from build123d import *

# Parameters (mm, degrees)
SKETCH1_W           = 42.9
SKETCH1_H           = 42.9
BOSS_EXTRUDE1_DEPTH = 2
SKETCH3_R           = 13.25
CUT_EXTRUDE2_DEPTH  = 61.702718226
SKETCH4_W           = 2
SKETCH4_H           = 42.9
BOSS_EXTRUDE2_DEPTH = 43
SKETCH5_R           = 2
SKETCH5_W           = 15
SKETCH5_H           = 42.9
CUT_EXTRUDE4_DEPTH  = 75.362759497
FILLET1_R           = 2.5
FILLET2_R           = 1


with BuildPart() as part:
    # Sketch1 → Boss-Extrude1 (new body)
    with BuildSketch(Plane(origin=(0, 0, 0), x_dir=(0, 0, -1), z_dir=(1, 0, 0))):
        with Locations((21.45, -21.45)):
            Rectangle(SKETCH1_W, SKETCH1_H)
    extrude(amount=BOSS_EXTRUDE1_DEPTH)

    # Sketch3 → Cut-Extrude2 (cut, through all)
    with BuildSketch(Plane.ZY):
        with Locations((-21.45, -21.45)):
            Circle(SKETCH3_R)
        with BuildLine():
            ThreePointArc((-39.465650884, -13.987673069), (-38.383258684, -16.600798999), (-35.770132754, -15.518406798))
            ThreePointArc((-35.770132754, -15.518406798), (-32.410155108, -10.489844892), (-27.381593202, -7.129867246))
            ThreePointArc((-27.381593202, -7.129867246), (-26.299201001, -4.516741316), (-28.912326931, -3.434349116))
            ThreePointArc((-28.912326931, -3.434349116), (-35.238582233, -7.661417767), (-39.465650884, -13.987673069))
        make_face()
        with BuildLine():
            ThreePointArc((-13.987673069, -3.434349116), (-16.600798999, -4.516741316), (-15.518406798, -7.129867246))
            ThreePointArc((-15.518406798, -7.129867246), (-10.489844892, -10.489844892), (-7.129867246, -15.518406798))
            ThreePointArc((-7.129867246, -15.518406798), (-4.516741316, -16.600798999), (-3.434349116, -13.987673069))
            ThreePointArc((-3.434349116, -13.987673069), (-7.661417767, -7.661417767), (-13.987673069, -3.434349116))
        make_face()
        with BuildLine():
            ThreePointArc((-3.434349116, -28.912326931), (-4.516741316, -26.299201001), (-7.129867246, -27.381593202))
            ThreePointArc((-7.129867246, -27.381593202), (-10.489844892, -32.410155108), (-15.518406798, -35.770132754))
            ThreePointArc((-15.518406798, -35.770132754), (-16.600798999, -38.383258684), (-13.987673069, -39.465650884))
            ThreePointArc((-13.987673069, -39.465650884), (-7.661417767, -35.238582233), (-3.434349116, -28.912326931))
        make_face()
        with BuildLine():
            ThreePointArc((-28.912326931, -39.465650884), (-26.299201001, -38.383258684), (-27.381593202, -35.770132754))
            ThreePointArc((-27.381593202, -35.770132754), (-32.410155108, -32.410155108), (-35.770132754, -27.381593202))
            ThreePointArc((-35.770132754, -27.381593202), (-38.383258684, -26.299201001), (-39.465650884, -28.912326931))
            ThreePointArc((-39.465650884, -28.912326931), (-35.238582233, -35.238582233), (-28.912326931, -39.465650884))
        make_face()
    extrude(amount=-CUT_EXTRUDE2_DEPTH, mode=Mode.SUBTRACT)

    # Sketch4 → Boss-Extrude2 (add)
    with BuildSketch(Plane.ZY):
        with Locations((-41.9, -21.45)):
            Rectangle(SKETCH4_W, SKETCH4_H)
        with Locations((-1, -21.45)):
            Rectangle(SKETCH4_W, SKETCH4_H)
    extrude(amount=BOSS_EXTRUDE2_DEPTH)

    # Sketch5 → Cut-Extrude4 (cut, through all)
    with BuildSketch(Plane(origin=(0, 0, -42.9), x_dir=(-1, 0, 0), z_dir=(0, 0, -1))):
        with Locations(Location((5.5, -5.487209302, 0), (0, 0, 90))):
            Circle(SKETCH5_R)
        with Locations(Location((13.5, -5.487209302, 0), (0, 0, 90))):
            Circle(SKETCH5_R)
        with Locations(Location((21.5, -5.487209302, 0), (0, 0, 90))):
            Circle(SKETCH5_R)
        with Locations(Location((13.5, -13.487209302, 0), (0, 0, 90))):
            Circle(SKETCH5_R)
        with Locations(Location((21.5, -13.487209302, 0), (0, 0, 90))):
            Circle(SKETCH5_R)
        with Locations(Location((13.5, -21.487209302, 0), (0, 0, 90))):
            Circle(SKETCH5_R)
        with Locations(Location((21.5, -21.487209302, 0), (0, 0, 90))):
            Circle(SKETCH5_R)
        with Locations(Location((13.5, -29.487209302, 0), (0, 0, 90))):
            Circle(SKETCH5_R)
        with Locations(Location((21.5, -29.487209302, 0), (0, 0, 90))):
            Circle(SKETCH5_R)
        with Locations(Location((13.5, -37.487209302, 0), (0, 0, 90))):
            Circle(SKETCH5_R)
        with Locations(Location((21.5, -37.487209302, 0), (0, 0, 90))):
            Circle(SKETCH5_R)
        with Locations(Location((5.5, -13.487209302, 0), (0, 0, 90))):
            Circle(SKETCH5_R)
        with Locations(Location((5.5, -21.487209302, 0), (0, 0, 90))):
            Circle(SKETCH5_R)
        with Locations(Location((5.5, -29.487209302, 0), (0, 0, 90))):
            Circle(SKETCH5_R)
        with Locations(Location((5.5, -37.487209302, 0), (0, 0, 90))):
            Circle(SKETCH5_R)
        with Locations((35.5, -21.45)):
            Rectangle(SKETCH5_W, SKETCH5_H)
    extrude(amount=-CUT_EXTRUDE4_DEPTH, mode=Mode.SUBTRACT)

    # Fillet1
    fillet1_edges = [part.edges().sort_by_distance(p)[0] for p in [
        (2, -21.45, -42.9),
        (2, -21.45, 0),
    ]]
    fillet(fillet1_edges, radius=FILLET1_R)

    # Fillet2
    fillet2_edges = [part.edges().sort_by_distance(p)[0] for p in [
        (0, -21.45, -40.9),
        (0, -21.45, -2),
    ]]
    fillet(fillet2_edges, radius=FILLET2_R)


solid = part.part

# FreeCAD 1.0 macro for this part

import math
import FreeCAD as App
import Part
import Sketcher
Q = App.Units.Quantity


def edges_at(feature, points):
    """Names of the edges that pass closest to the given points."""
    edges = feature.Shape.Edges
    near = lambda p: min(range(len(edges)), key=lambda i: edges[i].distToShape(Part.Vertex(*p))[0])
    return sorted({f"Edge{near(p) + 1}" for p in points})

doc = App.newDocument("Part")
body = doc.addObject("PartDesign::Body", "Body")

sketch1 = doc.addObject("Sketcher::SketchObject", "Sketch")
body.addObject(sketch1)
sketch1.AttachmentSupport = (doc.YZ_Plane, [""])
sketch1.MapMode = "FlatFace"
sketch1.addGeometry(Part.LineSegment(App.Vector(0, 0, 0), App.Vector(-43, 0, 0)), False)
sketch1.addGeometry(Part.LineSegment(App.Vector(-43, 0, 0), App.Vector(-43, -43, 0)), False)
sketch1.addGeometry(Part.LineSegment(App.Vector(-43, -43, 0), App.Vector(0, -43, 0)), False)
sketch1.addGeometry(Part.LineSegment(App.Vector(0, -43, 0), App.Vector(0, 0, 0)), False)
sketch1.addConstraint(Sketcher.Constraint("Coincident", 0, 2, 1, 1))
sketch1.addConstraint(Sketcher.Constraint("Coincident", 1, 2, 2, 1))
sketch1.addConstraint(Sketcher.Constraint("Coincident", 2, 2, 3, 1))
sketch1.addConstraint(Sketcher.Constraint("Coincident", 3, 2, 0, 1))
sketch1.addConstraint(Sketcher.Constraint("Horizontal", 0))
sketch1.addConstraint(Sketcher.Constraint("Vertical", 1))
sketch1.addConstraint(Sketcher.Constraint("Horizontal", 2))
sketch1.addConstraint(Sketcher.Constraint("Vertical", 3))
sketch1.addConstraint(Sketcher.Constraint("Coincident", 3, 2, -1, 1))
sketch1.addConstraint(Sketcher.Constraint("Equal", 2, 1))
sketch1.addConstraint(Sketcher.Constraint("DistanceX", 0, 2, 0, 1, Q("42.9 mm")))
pad1 = doc.addObject("PartDesign::Pad", "Pad")
body.addObject(pad1)
pad1.Profile = sketch1
pad1.Length = 2

sketch2 = doc.addObject("Sketcher::SketchObject", "Sketch001")
body.addObject(sketch2)
sketch2.AttachmentSupport = (doc.YZ_Plane, [""])
sketch2.MapMode = "FlatFace"
sketch2.addGeometry(Part.Circle(App.Vector(-21.4, -21.4, 0), App.Vector(0, 0, 1), 13.2), False)
sketch2.addGeometry(Part.ArcOfCircle(Part.Circle(App.Vector(-14.8, -37.6, 0), App.Vector(0, 0, 1), 2), math.radians(112), math.radians(293)), False)
sketch2.addGeometry(Part.ArcOfCircle(Part.Circle(App.Vector(-21.5, -21.4, 0), App.Vector(0, 0, 1), 15.5), math.radians(-67), math.radians(-23)), False)
sketch2.addGeometry(Part.ArcOfCircle(Part.Circle(App.Vector(-5.3, -28.1, 0), App.Vector(0, 0, 1), 2), math.radians(-23), math.radians(158)), False)
sketch2.addGeometry(Part.ArcOfCircle(Part.Circle(App.Vector(-21.5, -21.4, 0), App.Vector(0, 0, 1), 19.5), math.radians(-67), math.radians(-23)), False)
sketch2.addGeometry(Part.ArcOfCircle(Part.Circle(App.Vector(-5.3, -14.8, 0), App.Vector(0, 0, 1), 2), math.radians(-158), math.radians(23)), False)
sketch2.addGeometry(Part.ArcOfCircle(Part.Circle(App.Vector(-21.5, -21.5, 0), App.Vector(0, 0, 1), 15.5), math.radians(23), math.radians(67)), False)
sketch2.addGeometry(Part.ArcOfCircle(Part.Circle(App.Vector(-14.8, -5.3, 0), App.Vector(0, 0, 1), 2), math.radians(67), math.radians(248)), False)
sketch2.addGeometry(Part.ArcOfCircle(Part.Circle(App.Vector(-21.5, -21.5, 0), App.Vector(0, 0, 1), 19.5), math.radians(23), math.radians(67)), False)
sketch2.addGeometry(Part.ArcOfCircle(Part.Circle(App.Vector(-28.1, -5.3, 0), App.Vector(0, 0, 1), 2), math.radians(-68), math.radians(113)), False)
sketch2.addGeometry(Part.ArcOfCircle(Part.Circle(App.Vector(-21.4, -21.5, 0), App.Vector(0, 0, 1), 15.5), math.radians(113), math.radians(157)), False)
sketch2.addGeometry(Part.ArcOfCircle(Part.Circle(App.Vector(-37.6, -14.8, 0), App.Vector(0, 0, 1), 2), math.radians(157), math.radians(338)), False)
sketch2.addGeometry(Part.ArcOfCircle(Part.Circle(App.Vector(-21.4, -21.5, 0), App.Vector(0, 0, 1), 19.5), math.radians(113), math.radians(157)), False)
sketch2.addGeometry(Part.ArcOfCircle(Part.Circle(App.Vector(-37.6, -28.1, 0), App.Vector(0, 0, 1), 2), math.radians(22), math.radians(203)), False)
sketch2.addGeometry(Part.ArcOfCircle(Part.Circle(App.Vector(-21.4, -21.4, 0), App.Vector(0, 0, 1), 15.5), math.radians(-157), math.radians(-113)), False)
sketch2.addGeometry(Part.ArcOfCircle(Part.Circle(App.Vector(-28.1, -37.6, 0), App.Vector(0, 0, 1), 2), math.radians(-113), math.radians(68)), False)
sketch2.addGeometry(Part.ArcOfCircle(Part.Circle(App.Vector(-21.4, -21.4, 0), App.Vector(0, 0, 1), 19.5), math.radians(-157), math.radians(-113)), False)
sketch2.addConstraint(Sketcher.Constraint("Tangent", 1, 1, 2, 1))
sketch2.addConstraint(Sketcher.Constraint("Tangent", 2, 2, 3, 2))
sketch2.addConstraint(Sketcher.Constraint("Tangent", 3, 1, 4, 2))
sketch2.addConstraint(Sketcher.Constraint("Tangent", 4, 1, 1, 2))
sketch2.addConstraint(Sketcher.Constraint("Tangent", 5, 1, 6, 1))
sketch2.addConstraint(Sketcher.Constraint("Tangent", 6, 2, 7, 2))
sketch2.addConstraint(Sketcher.Constraint("Tangent", 7, 1, 8, 2))
sketch2.addConstraint(Sketcher.Constraint("Tangent", 8, 1, 5, 2))
sketch2.addConstraint(Sketcher.Constraint("Tangent", 9, 1, 10, 1))
sketch2.addConstraint(Sketcher.Constraint("Tangent", 10, 2, 11, 2))
sketch2.addConstraint(Sketcher.Constraint("Tangent", 11, 1, 12, 2))
sketch2.addConstraint(Sketcher.Constraint("Tangent", 12, 1, 9, 2))
sketch2.addConstraint(Sketcher.Constraint("Tangent", 13, 1, 14, 1))
sketch2.addConstraint(Sketcher.Constraint("Tangent", 14, 2, 15, 2))
sketch2.addConstraint(Sketcher.Constraint("Tangent", 15, 1, 16, 2))
sketch2.addConstraint(Sketcher.Constraint("Tangent", 16, 1, 13, 2))
sketch2.addConstraint(Sketcher.Constraint("Coincident", 2, 3, 0, 3))
sketch2.addConstraint(Sketcher.Constraint("Coincident", 4, 3, 0, 3))
sketch2.addConstraint(Sketcher.Constraint("Coincident", 6, 3, 0, 3))
sketch2.addConstraint(Sketcher.Constraint("Coincident", 8, 3, 0, 3))
sketch2.addConstraint(Sketcher.Constraint("Coincident", 10, 3, 0, 3))
sketch2.addConstraint(Sketcher.Constraint("Coincident", 12, 3, 0, 3))
sketch2.addConstraint(Sketcher.Constraint("Coincident", 14, 3, 0, 3))
sketch2.addConstraint(Sketcher.Constraint("Coincident", 16, 3, 0, 3))
sketch2.addConstraint(Sketcher.Constraint("Equal", 3, 5))
sketch2.addConstraint(Sketcher.Constraint("Equal", 2, 6))
sketch2.addConstraint(Sketcher.Constraint("Equal", 7, 9))
sketch2.addConstraint(Sketcher.Constraint("Equal", 6, 10))
sketch2.addConstraint(Sketcher.Constraint("Equal", 11, 13))
sketch2.addConstraint(Sketcher.Constraint("Equal", 10, 14))
sketch2.addConstraint(Sketcher.Constraint("Horizontal", 7, 3, 9, 3))
sketch2.addConstraint(Sketcher.Constraint("Horizontal", 5, 3, 11, 3))
sketch2.addConstraint(Sketcher.Constraint("Horizontal", 3, 3, 13, 3))
sketch2.addConstraint(Sketcher.Constraint("Horizontal", 1, 3, 15, 3))
sketch2.addConstraint(Sketcher.Constraint("Vertical", 3, 3, 5, 3))
sketch2.addConstraint(Sketcher.Constraint("Vertical", 1, 3, 7, 3))
sketch2.addConstraint(Sketcher.Constraint("Radius", 1, Q("2 mm")))
sketch2.addConstraint(Sketcher.Constraint("Diameter", 0, Q("26.5 mm")))
sketch2.addConstraint(Sketcher.Constraint("Radius", 2, Q("15.5 mm")))
sketch2.addConstraint(Sketcher.Constraint("DistanceX", 0, 3, -1, 1, Q("21.45 mm")))
sketch2.addConstraint(Sketcher.Constraint("DistanceY", 0, 3, -1, 1, Q("21.45 mm")))
sketch2.addConstraint(Sketcher.Constraint("DistanceX", 1, 1, 3, 3, Q("10.236299 mm")))
sketch2.addConstraint(Sketcher.Constraint("DistanceY", 1, 3, 2, 2, Q("10.236299 mm")))
pocket1 = doc.addObject("PartDesign::Pocket", "Pocket")
body.addObject(pocket1)
pocket1.Profile = sketch2
pocket1.Type = "ThroughAll"
pocket1.Reversed = True

sketch3 = doc.addObject("Sketcher::SketchObject", "Sketch002")
body.addObject(sketch3)
sketch3.AttachmentSupport = (doc.YZ_Plane, [""])
sketch3.MapMode = "FlatFace"
sketch3.addGeometry(Part.LineSegment(App.Vector(0, -42.9, 0), App.Vector(-42.9, -42.9, 0)), False)
sketch3.addGeometry(Part.LineSegment(App.Vector(-42.9, -42.9, 0), App.Vector(-42.9, -40.9, 0)), False)
sketch3.addGeometry(Part.LineSegment(App.Vector(-42.9, -40.9, 0), App.Vector(0, -40.9, 0)), False)
sketch3.addGeometry(Part.LineSegment(App.Vector(0, -40.9, 0), App.Vector(0, -42.9, 0)), False)
sketch3.addGeometry(Part.LineSegment(App.Vector(0, -2, 0), App.Vector(-42.9, -2, 0)), False)
sketch3.addGeometry(Part.LineSegment(App.Vector(-42.9, -2, 0), App.Vector(-42.9, 0, 0)), False)
sketch3.addGeometry(Part.LineSegment(App.Vector(-42.9, 0, 0), App.Vector(0, 0, 0)), False)
sketch3.addGeometry(Part.LineSegment(App.Vector(0, 0, 0), App.Vector(0, -2, 0)), False)
sketch3.addConstraint(Sketcher.Constraint("Coincident", 0, 2, 1, 1))
sketch3.addConstraint(Sketcher.Constraint("Coincident", 1, 2, 2, 1))
sketch3.addConstraint(Sketcher.Constraint("Coincident", 2, 2, 3, 1))
sketch3.addConstraint(Sketcher.Constraint("Coincident", 3, 2, 0, 1))
sketch3.addConstraint(Sketcher.Constraint("Coincident", 4, 2, 5, 1))
sketch3.addConstraint(Sketcher.Constraint("Coincident", 5, 2, 6, 1))
sketch3.addConstraint(Sketcher.Constraint("Coincident", 6, 2, 7, 1))
sketch3.addConstraint(Sketcher.Constraint("Coincident", 7, 2, 4, 1))
sketch3.addConstraint(Sketcher.Constraint("Horizontal", 0))
sketch3.addConstraint(Sketcher.Constraint("Vertical", 1))
sketch3.addConstraint(Sketcher.Constraint("Horizontal", 2))
sketch3.addConstraint(Sketcher.Constraint("Vertical", 3))
sketch3.addConstraint(Sketcher.Constraint("Horizontal", 4))
sketch3.addConstraint(Sketcher.Constraint("Vertical", 5))
sketch3.addConstraint(Sketcher.Constraint("Horizontal", 6))
sketch3.addConstraint(Sketcher.Constraint("Vertical", 7))
sketch3.addConstraint(Sketcher.Constraint("Coincident", 6, 2, -1, 1))
sketch3.addConstraint(Sketcher.Constraint("PointOnObject", 2, 2, -2))
sketch3.addConstraint(Sketcher.Constraint("Vertical", 1, 2, 4, 2))
sketch3.addConstraint(Sketcher.Constraint("Equal", 3, 5))
sketch3.addConstraint(Sketcher.Constraint("DistanceY", 1, 1, 1, 2, Q("2 mm")))
sketch3.addConstraint(Sketcher.Constraint("DistanceX", 0, 2, 0, 1, Q("42.9 mm")))
sketch3.addConstraint(Sketcher.Constraint("DistanceY", 0, 2, -1, 1, Q("42.9 mm")))
pad2 = doc.addObject("PartDesign::Pad", "Pad001")
body.addObject(pad2)
pad2.Profile = sketch3
pad2.Length = 43
pad2.Reversed = True

sketch4 = doc.addObject("Sketcher::SketchObject", "Sketch003")
body.addObject(sketch4)
sketch4.AttachmentSupport = (doc.XY_Plane, [""])
sketch4.MapMode = "FlatFace"
sketch4.AttachmentOffset = App.Placement(App.Vector(0, 0, -42.9), App.Rotation())
sketch4.addGeometry(Part.Circle(App.Vector(-5.5, -5.5, 0), App.Vector(0, 0, 1), 2), False)
sketch4.addGeometry(Part.Circle(App.Vector(-13.5, -5.5, 0), App.Vector(0, 0, 1), 2), False)
sketch4.addGeometry(Part.Circle(App.Vector(-21.5, -5.5, 0), App.Vector(0, 0, 1), 2), False)
sketch4.addGeometry(Part.Circle(App.Vector(-13.5, -13.5, 0), App.Vector(0, 0, 1), 2), False)
sketch4.addGeometry(Part.Circle(App.Vector(-21.5, -13.5, 0), App.Vector(0, 0, 1), 2), False)
sketch4.addGeometry(Part.Circle(App.Vector(-13.5, -21.5, 0), App.Vector(0, 0, 1), 2), False)
sketch4.addGeometry(Part.Circle(App.Vector(-21.5, -21.5, 0), App.Vector(0, 0, 1), 2), False)
sketch4.addGeometry(Part.Circle(App.Vector(-13.5, -29.5, 0), App.Vector(0, 0, 1), 2), False)
sketch4.addGeometry(Part.Circle(App.Vector(-21.5, -29.5, 0), App.Vector(0, 0, 1), 2), False)
sketch4.addGeometry(Part.Circle(App.Vector(-13.5, -37.5, 0), App.Vector(0, 0, 1), 2), False)
sketch4.addGeometry(Part.Circle(App.Vector(-21.5, -37.5, 0), App.Vector(0, 0, 1), 2), False)
sketch4.addGeometry(Part.Circle(App.Vector(-5.5, -13.5, 0), App.Vector(0, 0, 1), 2), False)
sketch4.addGeometry(Part.Circle(App.Vector(-5.5, -21.5, 0), App.Vector(0, 0, 1), 2), False)
sketch4.addGeometry(Part.Circle(App.Vector(-5.5, -29.5, 0), App.Vector(0, 0, 1), 2), False)
sketch4.addGeometry(Part.Circle(App.Vector(-5.5, -37.5, 0), App.Vector(0, 0, 1), 2), False)
sketch4.addGeometry(Part.LineSegment(App.Vector(-28, 0, 0), App.Vector(-28, -42.9, 0)), False)
sketch4.addGeometry(Part.LineSegment(App.Vector(-28, -42.9, 0), App.Vector(-43, -42.9, 0)), False)
sketch4.addGeometry(Part.LineSegment(App.Vector(-43, -42.9, 0), App.Vector(-43, 0, 0)), False)
sketch4.addGeometry(Part.LineSegment(App.Vector(-43, 0, 0), App.Vector(-28, 0, 0)), False)
sketch4.addConstraint(Sketcher.Constraint("Coincident", 15, 2, 16, 1))
sketch4.addConstraint(Sketcher.Constraint("Coincident", 16, 2, 17, 1))
sketch4.addConstraint(Sketcher.Constraint("Coincident", 17, 2, 18, 1))
sketch4.addConstraint(Sketcher.Constraint("Coincident", 18, 2, 15, 1))
sketch4.addConstraint(Sketcher.Constraint("Vertical", 15))
sketch4.addConstraint(Sketcher.Constraint("Horizontal", 16))
sketch4.addConstraint(Sketcher.Constraint("Vertical", 17))
sketch4.addConstraint(Sketcher.Constraint("Horizontal", 18))
sketch4.addConstraint(Sketcher.Constraint("Equal", 0, 1))
sketch4.addConstraint(Sketcher.Constraint("Equal", 1, 2))
sketch4.addConstraint(Sketcher.Constraint("Equal", 2, 3))
sketch4.addConstraint(Sketcher.Constraint("Equal", 3, 4))
sketch4.addConstraint(Sketcher.Constraint("Equal", 4, 5))
sketch4.addConstraint(Sketcher.Constraint("Equal", 5, 6))
sketch4.addConstraint(Sketcher.Constraint("Equal", 6, 7))
sketch4.addConstraint(Sketcher.Constraint("Equal", 7, 8))
sketch4.addConstraint(Sketcher.Constraint("Equal", 8, 9))
sketch4.addConstraint(Sketcher.Constraint("Equal", 9, 10))
sketch4.addConstraint(Sketcher.Constraint("Equal", 10, 11))
sketch4.addConstraint(Sketcher.Constraint("Equal", 11, 12))
sketch4.addConstraint(Sketcher.Constraint("Equal", 12, 13))
sketch4.addConstraint(Sketcher.Constraint("Equal", 13, 14))
sketch4.addConstraint(Sketcher.Constraint("PointOnObject", 17, 2, -1))
sketch4.addConstraint(Sketcher.Constraint("Horizontal", 0, 3, 1, 3))
sketch4.addConstraint(Sketcher.Constraint("Horizontal", 1, 3, 2, 3))
sketch4.addConstraint(Sketcher.Constraint("Horizontal", 3, 3, 4, 3))
sketch4.addConstraint(Sketcher.Constraint("Horizontal", 5, 3, 6, 3))
sketch4.addConstraint(Sketcher.Constraint("Horizontal", 7, 3, 8, 3))
sketch4.addConstraint(Sketcher.Constraint("Horizontal", 9, 3, 10, 3))
sketch4.addConstraint(Sketcher.Constraint("Horizontal", 4, 3, 11, 3))
sketch4.addConstraint(Sketcher.Constraint("Horizontal", 6, 3, 12, 3))
sketch4.addConstraint(Sketcher.Constraint("Horizontal", 8, 3, 13, 3))
sketch4.addConstraint(Sketcher.Constraint("Horizontal", 10, 3, 14, 3))
sketch4.addConstraint(Sketcher.Constraint("Vertical", 1, 3, 3, 3))
sketch4.addConstraint(Sketcher.Constraint("Vertical", 2, 3, 4, 3))
sketch4.addConstraint(Sketcher.Constraint("Vertical", 3, 3, 5, 3))
sketch4.addConstraint(Sketcher.Constraint("Vertical", 4, 3, 6, 3))
sketch4.addConstraint(Sketcher.Constraint("Vertical", 5, 3, 7, 3))
sketch4.addConstraint(Sketcher.Constraint("Vertical", 6, 3, 8, 3))
sketch4.addConstraint(Sketcher.Constraint("Vertical", 7, 3, 9, 3))
sketch4.addConstraint(Sketcher.Constraint("Vertical", 8, 3, 10, 3))
sketch4.addConstraint(Sketcher.Constraint("Vertical", 0, 3, 11, 3))
sketch4.addConstraint(Sketcher.Constraint("Vertical", 11, 3, 12, 3))
sketch4.addConstraint(Sketcher.Constraint("Vertical", 12, 3, 13, 3))
sketch4.addConstraint(Sketcher.Constraint("Vertical", 13, 3, 14, 3))
sketch4.addConstraint(Sketcher.Constraint("Diameter", 0, Q("4 mm")))
sketch4.addConstraint(Sketcher.Constraint("DistanceX", 16, 2, 16, 1, Q("15 mm")))
sketch4.addConstraint(Sketcher.Constraint("DistanceY", 15, 2, 15, 1, Q("42.9 mm")))
sketch4.addConstraint(Sketcher.Constraint("DistanceX", 15, 2, -1, 1, Q("28 mm")))
sketch4.addConstraint(Sketcher.Constraint("DistanceX", 1, 3, 0, 3, Q("8 mm")))
sketch4.addConstraint(Sketcher.Constraint("DistanceX", 2, 3, 1, 3, Q("8 mm")))
sketch4.addConstraint(Sketcher.Constraint("DistanceY", 3, 3, 1, 3, Q("8 mm")))
sketch4.addConstraint(Sketcher.Constraint("DistanceY", 5, 3, 3, 3, Q("8 mm")))
sketch4.addConstraint(Sketcher.Constraint("DistanceY", 7, 3, 5, 3, Q("8 mm")))
sketch4.addConstraint(Sketcher.Constraint("DistanceY", 9, 3, 7, 3, Q("8 mm")))
sketch4.addConstraint(Sketcher.Constraint("DistanceX", 0, 3, -1, 1, Q("5.5 mm")))
sketch4.addConstraint(Sketcher.Constraint("DistanceY", 0, 3, -1, 1, Q("5.487209 mm")))
pocket2 = doc.addObject("PartDesign::Pocket", "Pocket001")
body.addObject(pocket2)
pocket2.Profile = sketch4
pocket2.Type = "ThroughAll"
pocket2.Reversed = True
doc.recompute()

fillet = doc.addObject("PartDesign::Fillet", "Fillet")
body.addObject(fillet)
fillet.Base = (pocket2, edges_at(pocket2, [(2, -21.45, -42.9), (2, -21.45, 0)]))
fillet.Radius = 2.5
doc.recompute()

fillet2 = doc.addObject("PartDesign::Fillet", "Fillet001")
body.addObject(fillet2)
fillet2.Base = (fillet, edges_at(fillet, [(0, -21.45, -40.9), (0, -21.45, -2)]))
fillet2.Radius = 1

doc.recompute()
